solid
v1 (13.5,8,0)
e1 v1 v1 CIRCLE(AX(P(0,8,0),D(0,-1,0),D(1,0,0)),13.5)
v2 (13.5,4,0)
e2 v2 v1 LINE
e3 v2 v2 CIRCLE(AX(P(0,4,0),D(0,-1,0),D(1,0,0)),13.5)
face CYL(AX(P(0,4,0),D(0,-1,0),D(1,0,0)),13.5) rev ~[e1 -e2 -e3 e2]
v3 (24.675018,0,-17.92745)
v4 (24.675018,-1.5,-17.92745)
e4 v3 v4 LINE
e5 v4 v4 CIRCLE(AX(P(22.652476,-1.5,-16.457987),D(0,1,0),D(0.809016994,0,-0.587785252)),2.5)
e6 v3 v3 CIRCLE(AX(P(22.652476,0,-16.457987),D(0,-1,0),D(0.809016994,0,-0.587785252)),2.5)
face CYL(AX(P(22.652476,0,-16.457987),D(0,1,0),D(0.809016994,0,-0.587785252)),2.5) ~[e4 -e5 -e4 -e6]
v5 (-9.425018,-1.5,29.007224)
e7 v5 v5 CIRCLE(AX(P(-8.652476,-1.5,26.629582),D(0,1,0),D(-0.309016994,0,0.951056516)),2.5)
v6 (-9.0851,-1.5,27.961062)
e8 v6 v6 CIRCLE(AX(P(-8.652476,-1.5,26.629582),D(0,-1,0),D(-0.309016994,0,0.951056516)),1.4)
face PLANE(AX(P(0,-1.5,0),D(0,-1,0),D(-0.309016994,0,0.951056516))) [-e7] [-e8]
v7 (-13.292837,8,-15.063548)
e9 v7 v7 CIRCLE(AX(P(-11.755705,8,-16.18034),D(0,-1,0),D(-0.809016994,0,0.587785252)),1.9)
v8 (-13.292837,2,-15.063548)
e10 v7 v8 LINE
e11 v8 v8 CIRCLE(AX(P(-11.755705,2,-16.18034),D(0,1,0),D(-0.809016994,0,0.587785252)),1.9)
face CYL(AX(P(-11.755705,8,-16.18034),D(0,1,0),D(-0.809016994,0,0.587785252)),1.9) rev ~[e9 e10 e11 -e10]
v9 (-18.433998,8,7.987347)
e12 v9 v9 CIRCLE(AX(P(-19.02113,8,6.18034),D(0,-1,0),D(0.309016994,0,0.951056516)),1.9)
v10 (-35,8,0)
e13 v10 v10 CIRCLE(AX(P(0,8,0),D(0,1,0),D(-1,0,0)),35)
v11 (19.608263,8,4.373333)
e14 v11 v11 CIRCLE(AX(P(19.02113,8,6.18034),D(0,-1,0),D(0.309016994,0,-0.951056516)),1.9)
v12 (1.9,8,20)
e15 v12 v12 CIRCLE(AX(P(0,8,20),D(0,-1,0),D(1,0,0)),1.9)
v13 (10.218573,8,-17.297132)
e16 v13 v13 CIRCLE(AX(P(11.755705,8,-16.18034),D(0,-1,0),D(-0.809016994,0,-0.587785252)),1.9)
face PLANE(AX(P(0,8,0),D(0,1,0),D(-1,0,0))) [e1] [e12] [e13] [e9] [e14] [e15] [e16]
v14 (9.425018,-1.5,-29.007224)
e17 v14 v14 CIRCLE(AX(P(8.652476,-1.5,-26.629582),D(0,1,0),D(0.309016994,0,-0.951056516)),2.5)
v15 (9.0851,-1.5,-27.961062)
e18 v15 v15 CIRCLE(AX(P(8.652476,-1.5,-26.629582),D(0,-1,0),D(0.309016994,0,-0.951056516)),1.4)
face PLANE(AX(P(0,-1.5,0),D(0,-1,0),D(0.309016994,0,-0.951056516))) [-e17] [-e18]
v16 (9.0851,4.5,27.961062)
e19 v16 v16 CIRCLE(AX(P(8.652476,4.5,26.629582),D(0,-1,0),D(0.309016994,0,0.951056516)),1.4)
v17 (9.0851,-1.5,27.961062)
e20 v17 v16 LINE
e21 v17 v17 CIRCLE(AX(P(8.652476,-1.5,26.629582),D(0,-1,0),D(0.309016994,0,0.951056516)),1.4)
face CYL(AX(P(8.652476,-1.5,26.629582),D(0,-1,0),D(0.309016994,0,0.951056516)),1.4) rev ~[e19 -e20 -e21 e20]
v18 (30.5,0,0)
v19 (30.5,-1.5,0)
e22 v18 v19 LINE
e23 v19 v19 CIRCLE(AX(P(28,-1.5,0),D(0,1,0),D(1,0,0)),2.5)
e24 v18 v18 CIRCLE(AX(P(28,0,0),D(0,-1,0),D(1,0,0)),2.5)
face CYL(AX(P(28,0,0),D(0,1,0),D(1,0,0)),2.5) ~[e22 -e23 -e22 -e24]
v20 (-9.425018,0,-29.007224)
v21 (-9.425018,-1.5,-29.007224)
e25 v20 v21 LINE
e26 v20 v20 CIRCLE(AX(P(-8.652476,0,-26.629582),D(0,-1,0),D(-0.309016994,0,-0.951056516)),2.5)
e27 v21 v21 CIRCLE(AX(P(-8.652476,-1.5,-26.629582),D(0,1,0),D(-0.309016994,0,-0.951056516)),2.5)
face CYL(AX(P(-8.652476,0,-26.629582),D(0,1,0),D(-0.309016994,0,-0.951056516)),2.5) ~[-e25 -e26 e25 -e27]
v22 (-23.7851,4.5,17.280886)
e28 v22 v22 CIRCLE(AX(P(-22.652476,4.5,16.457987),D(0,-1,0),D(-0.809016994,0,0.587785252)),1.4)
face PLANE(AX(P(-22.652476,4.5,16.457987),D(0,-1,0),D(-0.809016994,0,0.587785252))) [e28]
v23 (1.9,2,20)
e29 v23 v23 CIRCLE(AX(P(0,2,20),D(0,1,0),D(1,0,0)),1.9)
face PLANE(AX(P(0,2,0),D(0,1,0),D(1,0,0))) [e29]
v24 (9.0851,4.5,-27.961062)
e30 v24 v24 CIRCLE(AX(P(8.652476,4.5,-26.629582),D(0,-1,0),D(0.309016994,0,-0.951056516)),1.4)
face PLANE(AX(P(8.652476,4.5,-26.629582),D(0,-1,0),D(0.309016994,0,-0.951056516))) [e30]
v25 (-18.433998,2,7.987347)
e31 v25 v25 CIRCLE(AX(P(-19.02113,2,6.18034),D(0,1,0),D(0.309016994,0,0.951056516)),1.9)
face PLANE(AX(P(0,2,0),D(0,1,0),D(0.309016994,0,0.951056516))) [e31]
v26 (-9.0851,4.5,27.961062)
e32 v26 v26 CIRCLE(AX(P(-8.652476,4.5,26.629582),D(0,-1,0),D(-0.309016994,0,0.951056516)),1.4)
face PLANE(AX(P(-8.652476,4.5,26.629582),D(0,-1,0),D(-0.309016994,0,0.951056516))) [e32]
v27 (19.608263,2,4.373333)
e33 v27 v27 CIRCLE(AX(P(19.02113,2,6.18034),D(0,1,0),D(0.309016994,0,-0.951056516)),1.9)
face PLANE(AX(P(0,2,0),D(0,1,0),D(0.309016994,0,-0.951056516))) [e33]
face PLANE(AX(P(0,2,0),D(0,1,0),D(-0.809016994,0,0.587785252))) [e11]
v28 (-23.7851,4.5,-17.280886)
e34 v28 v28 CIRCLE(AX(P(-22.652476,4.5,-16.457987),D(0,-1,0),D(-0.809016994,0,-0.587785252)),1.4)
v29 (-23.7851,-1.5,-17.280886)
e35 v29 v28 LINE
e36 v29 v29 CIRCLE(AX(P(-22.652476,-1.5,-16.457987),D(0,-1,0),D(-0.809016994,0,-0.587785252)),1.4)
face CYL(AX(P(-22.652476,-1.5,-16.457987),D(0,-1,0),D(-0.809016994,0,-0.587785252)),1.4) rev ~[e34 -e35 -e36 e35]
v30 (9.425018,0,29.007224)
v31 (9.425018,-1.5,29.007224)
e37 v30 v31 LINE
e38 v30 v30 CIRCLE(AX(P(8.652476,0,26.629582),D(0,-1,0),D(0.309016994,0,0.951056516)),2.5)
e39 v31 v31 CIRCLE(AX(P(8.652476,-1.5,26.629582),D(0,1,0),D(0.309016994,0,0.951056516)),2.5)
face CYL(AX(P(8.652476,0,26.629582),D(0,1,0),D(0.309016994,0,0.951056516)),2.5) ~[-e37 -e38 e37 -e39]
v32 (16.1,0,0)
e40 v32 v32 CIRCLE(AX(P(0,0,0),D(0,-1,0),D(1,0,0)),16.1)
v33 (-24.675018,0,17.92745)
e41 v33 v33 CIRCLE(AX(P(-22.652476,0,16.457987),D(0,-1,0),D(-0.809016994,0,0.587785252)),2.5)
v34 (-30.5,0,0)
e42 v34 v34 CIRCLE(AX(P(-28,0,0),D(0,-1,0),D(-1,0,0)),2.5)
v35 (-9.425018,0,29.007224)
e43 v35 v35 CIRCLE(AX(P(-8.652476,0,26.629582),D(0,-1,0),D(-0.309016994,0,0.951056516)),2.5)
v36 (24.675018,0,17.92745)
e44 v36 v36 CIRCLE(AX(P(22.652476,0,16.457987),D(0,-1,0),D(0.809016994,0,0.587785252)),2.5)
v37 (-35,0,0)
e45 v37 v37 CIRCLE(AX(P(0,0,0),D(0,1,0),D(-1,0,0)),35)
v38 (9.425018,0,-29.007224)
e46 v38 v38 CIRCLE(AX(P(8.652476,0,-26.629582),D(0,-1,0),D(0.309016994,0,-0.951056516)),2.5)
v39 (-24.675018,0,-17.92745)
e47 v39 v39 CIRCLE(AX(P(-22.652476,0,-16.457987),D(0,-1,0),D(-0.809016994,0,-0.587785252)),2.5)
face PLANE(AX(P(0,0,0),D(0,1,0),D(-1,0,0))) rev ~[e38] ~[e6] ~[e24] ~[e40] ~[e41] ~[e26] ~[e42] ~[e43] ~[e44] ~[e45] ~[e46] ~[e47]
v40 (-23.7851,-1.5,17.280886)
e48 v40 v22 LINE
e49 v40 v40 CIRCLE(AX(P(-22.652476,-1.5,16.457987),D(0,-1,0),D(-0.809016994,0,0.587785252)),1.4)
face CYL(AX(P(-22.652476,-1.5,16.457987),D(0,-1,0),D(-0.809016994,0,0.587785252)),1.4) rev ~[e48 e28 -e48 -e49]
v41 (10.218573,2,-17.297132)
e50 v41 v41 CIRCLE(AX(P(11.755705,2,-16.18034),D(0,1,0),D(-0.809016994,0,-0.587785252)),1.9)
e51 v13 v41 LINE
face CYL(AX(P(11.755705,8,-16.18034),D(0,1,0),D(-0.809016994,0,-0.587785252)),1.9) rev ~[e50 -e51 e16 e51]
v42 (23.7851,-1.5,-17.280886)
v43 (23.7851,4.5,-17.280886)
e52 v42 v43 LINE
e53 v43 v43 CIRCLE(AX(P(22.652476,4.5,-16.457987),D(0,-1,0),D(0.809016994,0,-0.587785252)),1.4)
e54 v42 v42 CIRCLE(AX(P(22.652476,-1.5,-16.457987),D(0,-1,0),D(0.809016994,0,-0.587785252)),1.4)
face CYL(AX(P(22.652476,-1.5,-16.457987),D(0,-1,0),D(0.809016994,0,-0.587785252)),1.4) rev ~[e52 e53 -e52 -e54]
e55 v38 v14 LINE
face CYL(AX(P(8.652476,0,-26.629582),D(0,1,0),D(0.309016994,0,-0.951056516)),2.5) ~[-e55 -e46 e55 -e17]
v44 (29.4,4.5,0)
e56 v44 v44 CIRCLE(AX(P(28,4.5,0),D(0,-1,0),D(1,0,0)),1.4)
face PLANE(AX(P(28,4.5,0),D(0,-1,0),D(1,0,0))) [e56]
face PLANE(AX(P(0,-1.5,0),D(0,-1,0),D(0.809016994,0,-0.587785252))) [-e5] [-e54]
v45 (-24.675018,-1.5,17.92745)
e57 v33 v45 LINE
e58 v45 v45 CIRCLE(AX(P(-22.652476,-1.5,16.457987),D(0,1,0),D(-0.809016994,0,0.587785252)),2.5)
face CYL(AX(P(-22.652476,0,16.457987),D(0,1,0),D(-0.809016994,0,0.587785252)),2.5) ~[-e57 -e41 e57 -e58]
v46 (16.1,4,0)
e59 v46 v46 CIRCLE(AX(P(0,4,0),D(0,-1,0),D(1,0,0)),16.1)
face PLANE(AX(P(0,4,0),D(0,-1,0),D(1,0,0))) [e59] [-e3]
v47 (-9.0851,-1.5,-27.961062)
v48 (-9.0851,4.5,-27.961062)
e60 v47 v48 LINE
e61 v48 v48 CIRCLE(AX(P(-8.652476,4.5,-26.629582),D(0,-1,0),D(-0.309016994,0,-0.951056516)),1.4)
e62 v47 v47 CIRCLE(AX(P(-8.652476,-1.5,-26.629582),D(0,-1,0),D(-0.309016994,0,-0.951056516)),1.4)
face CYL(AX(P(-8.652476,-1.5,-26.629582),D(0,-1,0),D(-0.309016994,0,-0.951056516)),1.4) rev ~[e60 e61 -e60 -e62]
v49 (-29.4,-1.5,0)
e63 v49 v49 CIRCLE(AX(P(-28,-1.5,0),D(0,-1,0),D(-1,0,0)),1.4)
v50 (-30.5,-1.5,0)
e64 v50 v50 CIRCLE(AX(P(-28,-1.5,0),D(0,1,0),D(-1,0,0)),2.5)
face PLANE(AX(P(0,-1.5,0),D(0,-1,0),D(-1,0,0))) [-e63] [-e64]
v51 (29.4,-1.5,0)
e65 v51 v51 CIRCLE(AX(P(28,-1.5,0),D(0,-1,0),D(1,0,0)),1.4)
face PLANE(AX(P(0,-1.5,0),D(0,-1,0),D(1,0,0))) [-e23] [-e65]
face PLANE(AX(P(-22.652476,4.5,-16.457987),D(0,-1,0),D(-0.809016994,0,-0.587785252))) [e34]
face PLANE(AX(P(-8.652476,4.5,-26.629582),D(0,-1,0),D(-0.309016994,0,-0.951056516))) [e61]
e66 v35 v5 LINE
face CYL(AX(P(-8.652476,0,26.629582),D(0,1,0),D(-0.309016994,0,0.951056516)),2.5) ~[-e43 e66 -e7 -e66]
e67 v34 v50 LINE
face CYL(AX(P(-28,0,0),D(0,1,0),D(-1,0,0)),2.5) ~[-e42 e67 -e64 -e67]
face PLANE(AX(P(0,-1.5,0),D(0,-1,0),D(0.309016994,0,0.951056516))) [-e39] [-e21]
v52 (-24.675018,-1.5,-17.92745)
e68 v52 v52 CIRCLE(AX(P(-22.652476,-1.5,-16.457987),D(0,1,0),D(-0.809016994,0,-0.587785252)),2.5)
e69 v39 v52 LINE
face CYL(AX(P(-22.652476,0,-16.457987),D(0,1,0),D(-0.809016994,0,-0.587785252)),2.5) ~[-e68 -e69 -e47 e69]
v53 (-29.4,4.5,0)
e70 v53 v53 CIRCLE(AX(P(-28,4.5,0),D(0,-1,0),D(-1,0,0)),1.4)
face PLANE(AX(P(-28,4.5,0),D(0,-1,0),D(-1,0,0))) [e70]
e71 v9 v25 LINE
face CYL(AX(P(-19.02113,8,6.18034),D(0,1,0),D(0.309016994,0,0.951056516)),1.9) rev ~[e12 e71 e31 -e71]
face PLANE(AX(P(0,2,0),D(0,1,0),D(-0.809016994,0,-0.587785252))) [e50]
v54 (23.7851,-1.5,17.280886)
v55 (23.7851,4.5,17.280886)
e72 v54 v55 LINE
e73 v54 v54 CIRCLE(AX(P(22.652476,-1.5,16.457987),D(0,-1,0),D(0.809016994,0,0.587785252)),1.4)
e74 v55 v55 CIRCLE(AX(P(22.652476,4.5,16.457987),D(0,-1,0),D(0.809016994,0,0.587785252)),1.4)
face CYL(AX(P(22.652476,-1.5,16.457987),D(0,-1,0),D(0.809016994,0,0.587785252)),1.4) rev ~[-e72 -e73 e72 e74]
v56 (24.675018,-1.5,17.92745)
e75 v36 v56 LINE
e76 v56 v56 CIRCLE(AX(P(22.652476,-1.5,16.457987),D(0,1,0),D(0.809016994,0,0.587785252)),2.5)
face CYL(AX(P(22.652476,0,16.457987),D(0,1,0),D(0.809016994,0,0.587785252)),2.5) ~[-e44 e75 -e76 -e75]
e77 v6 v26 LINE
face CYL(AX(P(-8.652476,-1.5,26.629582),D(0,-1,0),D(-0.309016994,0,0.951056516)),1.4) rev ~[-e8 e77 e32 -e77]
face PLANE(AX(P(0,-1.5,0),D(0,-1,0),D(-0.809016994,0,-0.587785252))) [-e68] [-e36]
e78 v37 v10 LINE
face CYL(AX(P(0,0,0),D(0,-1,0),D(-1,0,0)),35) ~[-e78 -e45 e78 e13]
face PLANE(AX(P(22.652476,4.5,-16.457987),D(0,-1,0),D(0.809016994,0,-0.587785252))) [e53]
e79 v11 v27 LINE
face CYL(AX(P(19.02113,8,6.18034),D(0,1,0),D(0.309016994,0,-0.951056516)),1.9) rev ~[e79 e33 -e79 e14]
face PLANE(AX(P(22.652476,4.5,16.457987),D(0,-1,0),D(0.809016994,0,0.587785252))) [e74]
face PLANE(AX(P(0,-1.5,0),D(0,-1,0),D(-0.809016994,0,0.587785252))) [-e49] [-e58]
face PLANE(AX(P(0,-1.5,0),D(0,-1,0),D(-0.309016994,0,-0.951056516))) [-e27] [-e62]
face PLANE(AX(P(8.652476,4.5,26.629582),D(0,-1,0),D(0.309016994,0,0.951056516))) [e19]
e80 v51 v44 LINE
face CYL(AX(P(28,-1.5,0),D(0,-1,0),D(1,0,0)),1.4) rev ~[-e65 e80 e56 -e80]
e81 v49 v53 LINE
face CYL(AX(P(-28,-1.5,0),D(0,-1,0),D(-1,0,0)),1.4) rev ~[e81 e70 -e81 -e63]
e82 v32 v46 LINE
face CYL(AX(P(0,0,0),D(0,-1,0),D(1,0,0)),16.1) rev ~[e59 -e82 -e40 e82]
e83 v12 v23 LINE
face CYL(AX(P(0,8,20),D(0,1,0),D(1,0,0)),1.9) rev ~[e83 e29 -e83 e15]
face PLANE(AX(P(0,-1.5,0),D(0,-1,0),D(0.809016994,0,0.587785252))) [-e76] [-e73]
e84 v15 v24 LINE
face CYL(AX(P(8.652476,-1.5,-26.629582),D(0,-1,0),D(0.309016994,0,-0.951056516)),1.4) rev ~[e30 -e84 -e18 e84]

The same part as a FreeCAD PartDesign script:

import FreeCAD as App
import Part
import Sketcher
Q = App.Units.Quantity

doc = App.newDocument("Part")
body = doc.addObject("PartDesign::Body", "Body")

# Sketch on XZ plane
sketch1 = doc.addObject("Sketcher::SketchObject", "Sketch")
body.addObject(sketch1)
sketch1.AttachmentSupport = (doc.XZ_Plane, [""])
sketch1.MapMode = "FlatFace"
sketch1.addGeometry(Part.Circle(App.Vector(0, 0, 0), App.Vector(0, 0, 1), 35), False)
sketch1.addConstraint(Sketcher.Constraint("Coincident", 0, 3, -1, 1))
sketch1.addConstraint(Sketcher.Constraint("Diameter", 0, Q("70 mm")))
pad1 = doc.addObject("PartDesign::Pad", "Pad")
body.addObject(pad1)
pad1.Profile = sketch1
pad1.Length = 8
pad1.Reversed = True

# Sketch on XZ plane
sketch2 = doc.addObject("Sketcher::SketchObject", "Sketch001")
body.addObject(sketch2)
sketch2.AttachmentSupport = (doc.XZ_Plane, [""])
sketch2.MapMode = "FlatFace"
sketch2.addGeometry(Part.Circle(App.Vector(0, 0, 0), App.Vector(0, 0, 1), 16), False)
sketch2.addConstraint(Sketcher.Constraint("Coincident", 0, 3, -1, 1))
sketch2.addConstraint(Sketcher.Constraint("Diameter", 0, Q("32.2 mm")))
pocket1 = doc.addObject("PartDesign::Pocket", "Pocket")
body.addObject(pocket1)
pocket1.Profile = sketch2
pocket1.Length = 4

# Sketch on XZ plane
sketch3 = doc.addObject("Sketcher::SketchObject", "Sketch002")
body.addObject(sketch3)
sketch3.AttachmentSupport = (doc.XZ_Plane, [""])
sketch3.MapMode = "FlatFace"
sketch3.addGeometry(Part.Circle(App.Vector(28, 0, 0), App.Vector(0, 0, 1), 2.5), False)
sketch3.addConstraint(Sketcher.Constraint("PointOnObject", 0, 3, -1))
sketch3.addConstraint(Sketcher.Constraint("Diameter", 0, Q("5 mm")))
sketch3.addConstraint(Sketcher.Constraint("DistanceX", -1, 1, 0, 3, Q("28 mm")))
pad2 = doc.addObject("PartDesign::Pad", "Pad001")
body.addObject(pad2)
pad2.Profile = sketch3
pad2.Length = 1.5
doc.recompute()

polarpattern = doc.addObject("PartDesign::PolarPattern", "PolarPattern")
body.addObject(polarpattern)
polarpattern.Originals = [pad2]
polarpattern.Axis = (doc.Y_Axis, [""])
polarpattern.Angle = 360
polarpattern.Occurrences = 10
body.Tip = polarpattern

# Sketch on XZ plane
sketch4 = doc.addObject("Sketcher::SketchObject", "Sketch003")
body.addObject(sketch4)
sketch4.AttachmentSupport = (doc.XZ_Plane, [""])
sketch4.MapMode = "FlatFace"
sketch4.AttachmentOffset = App.Placement(App.Vector(0, 0, -4), App.Rotation())
sketch4.addGeometry(Part.Circle(App.Vector(0, 0, 0), App.Vector(0, 0, 1), 14), False)
sketch4.addConstraint(Sketcher.Constraint("Coincident", 0, 3, -1, 1))
sketch4.addConstraint(Sketcher.Constraint("Diameter", 0, Q("27 mm")))
pocket2 = doc.addObject("PartDesign::Pocket", "Pocket001")
body.addObject(pocket2)
pocket2.Profile = sketch4
pocket2.Length = 4

# Sketch on XZ plane
sketch5 = doc.addObject("Sketcher::SketchObject", "Sketch004")
body.addObject(sketch5)
sketch5.AttachmentSupport = (doc.XZ_Plane, [""])
sketch5.MapMode = "FlatFace"
sketch5.AttachmentOffset = App.Placement(App.Vector(0, 0, 1.5), App.Rotation())
sketch5.addGeometry(Part.Circle(App.Vector(28, 0, 0), App.Vector(0, 0, 1), 1.4), False)
sketch5.addConstraint(Sketcher.Constraint("PointOnObject", 0, 3, -1))
sketch5.addConstraint(Sketcher.Constraint("Diameter", 0, Q("2.8 mm")))
sketch5.addConstraint(Sketcher.Constraint("DistanceX", -1, 1, 0, 3, Q("28 mm")))
pocket3 = doc.addObject("PartDesign::Pocket", "Pocket002")
body.addObject(pocket3)
pocket3.Profile = sketch5
pocket3.Length = 6
doc.recompute()

polarpattern2 = doc.addObject("PartDesign::PolarPattern", "PolarPattern001")
body.addObject(polarpattern2)
polarpattern2.Originals = [pocket3]
polarpattern2.Axis = (doc.Y_Axis, [""])
polarpattern2.Angle = 360
polarpattern2.Occurrences = 10
body.Tip = polarpattern2

# Sketch on XZ plane
sketch6 = doc.addObject("Sketcher::SketchObject", "Sketch005")
body.addObject(sketch6)
sketch6.AttachmentSupport = (doc.XZ_Plane, [""])
sketch6.MapMode = "FlatFace"
sketch6.AttachmentOffset = App.Placement(App.Vector(0, 0, -8), App.Rotation())
sketch6.addGeometry(Part.Circle(App.Vector(0, 20, 0), App.Vector(0, 0, 1), 1.9), False)
sketch6.addConstraint(Sketcher.Constraint("PointOnObject", 0, 3, -2))
sketch6.addConstraint(Sketcher.Constraint("Diameter", 0, Q("3.8 mm")))
sketch6.addConstraint(Sketcher.Constraint("DistanceY", -1, 1, 0, 3, Q("20 mm")))
pocket4 = doc.addObject("PartDesign::Pocket", "Pocket003")
body.addObject(pocket4)
pocket4.Profile = sketch6
pocket4.Length = 6
pocket4.Reversed = True
doc.recompute()

polarpattern3 = doc.addObject("PartDesign::PolarPattern", "PolarPattern002")
body.addObject(polarpattern3)
polarpattern3.Originals = [pocket4]
polarpattern3.Axis = (doc.Y_Axis, [""])
polarpattern3.Angle = 360
polarpattern3.Occurrences = 5
body.Tip = polarpattern3

doc.recompute()
